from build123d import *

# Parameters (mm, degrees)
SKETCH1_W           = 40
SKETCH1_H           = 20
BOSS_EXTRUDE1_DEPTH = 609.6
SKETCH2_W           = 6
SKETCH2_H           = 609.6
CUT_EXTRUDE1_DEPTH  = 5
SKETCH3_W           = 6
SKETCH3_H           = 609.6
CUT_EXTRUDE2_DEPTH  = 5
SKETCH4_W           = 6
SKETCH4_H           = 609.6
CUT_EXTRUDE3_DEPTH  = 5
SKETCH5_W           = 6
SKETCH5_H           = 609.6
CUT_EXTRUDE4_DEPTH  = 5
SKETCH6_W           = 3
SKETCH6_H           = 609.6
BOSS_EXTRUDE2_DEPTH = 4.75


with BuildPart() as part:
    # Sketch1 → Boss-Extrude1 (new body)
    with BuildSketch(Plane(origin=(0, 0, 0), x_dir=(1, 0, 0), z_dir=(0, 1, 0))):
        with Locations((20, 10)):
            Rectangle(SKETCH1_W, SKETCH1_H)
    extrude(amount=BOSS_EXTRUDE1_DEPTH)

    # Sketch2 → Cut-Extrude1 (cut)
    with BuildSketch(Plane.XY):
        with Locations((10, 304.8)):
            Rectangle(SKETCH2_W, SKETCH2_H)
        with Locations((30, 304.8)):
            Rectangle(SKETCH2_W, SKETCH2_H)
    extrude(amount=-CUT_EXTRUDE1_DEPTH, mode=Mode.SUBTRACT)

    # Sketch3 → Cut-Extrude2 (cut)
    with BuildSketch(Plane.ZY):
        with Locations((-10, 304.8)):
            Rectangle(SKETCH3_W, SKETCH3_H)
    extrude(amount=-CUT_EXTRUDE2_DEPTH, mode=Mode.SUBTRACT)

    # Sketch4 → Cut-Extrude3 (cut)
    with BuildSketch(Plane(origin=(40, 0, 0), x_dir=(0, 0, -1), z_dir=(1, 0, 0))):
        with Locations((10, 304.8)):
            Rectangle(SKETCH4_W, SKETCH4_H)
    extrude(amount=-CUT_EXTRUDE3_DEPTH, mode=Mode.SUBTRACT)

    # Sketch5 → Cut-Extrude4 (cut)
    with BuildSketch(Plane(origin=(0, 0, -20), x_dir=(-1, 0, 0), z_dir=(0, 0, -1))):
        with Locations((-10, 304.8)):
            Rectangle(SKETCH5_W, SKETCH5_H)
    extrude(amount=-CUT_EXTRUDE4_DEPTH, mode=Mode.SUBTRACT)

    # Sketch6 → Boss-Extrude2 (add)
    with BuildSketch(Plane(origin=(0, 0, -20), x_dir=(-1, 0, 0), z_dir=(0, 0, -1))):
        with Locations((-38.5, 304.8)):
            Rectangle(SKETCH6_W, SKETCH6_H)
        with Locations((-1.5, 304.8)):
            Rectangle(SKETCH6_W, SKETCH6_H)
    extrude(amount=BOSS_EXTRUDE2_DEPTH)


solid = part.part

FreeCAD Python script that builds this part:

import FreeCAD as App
import Part
import Sketcher

V = App.Vector

doc = App.newDocument("Part")
body = doc.addObject("PartDesign::Body", "Body")

# Sketch on XZ plane
sketch1 = body.newObject("Sketcher::SketchObject", "Sketch")
sketch1.AttachmentSupport = (doc.getObject("XZ_Plane"), [""])
sketch1.MapMode = "FlatFace"
sketch1.addGeometry(Part.LineSegment(V(0, -20, 0), V(0, 0, 0)), False)
sketch1.addGeometry(Part.LineSegment(V(0, 0, 0), V(40, 0, 0)), False)
sketch1.addGeometry(Part.LineSegment(V(40, 0, 0), V(40, -20, 0)), False)
sketch1.addGeometry(Part.LineSegment(V(40, -20, 0), V(0, -20, 0)), False)
sketch1.addConstraint(Sketcher.Constraint("Coincident", 0, 2, 1, 1))
sketch1.addConstraint(Sketcher.Constraint("Coincident", 1, 2, 2, 1))
sketch1.addConstraint(Sketcher.Constraint("Coincident", 2, 2, 3, 1))
sketch1.addConstraint(Sketcher.Constraint("Coincident", 3, 2, 0, 1))
sketch1.addConstraint(Sketcher.Constraint("Vertical", 0))
sketch1.addConstraint(Sketcher.Constraint("Horizontal", 1))
sketch1.addConstraint(Sketcher.Constraint("Vertical", 2))
sketch1.addConstraint(Sketcher.Constraint("Horizontal", 3))
sketch1.addConstraint(Sketcher.Constraint("Coincident", 0, 2, -1, 1))
sketch1.addConstraint(Sketcher.Constraint("DistanceX", 1, 1, 1, 2, 40.0))
sketch1.addConstraint(Sketcher.Constraint("DistanceY", 0, 1, 0, 2, 20.0))
pad1 = body.newObject("PartDesign::Pad", "Pad")
pad1.Profile = sketch1
pad1.Length = 609.6
pad1.Reversed = True

# Sketch on XY plane
sketch2 = body.newObject("Sketcher::SketchObject", "Sketch001")
sketch2.AttachmentSupport = (doc.getObject("XY_Plane"), [""])
sketch2.MapMode = "FlatFace"
sketch2.addGeometry(Part.LineSegment(V(7, 610, 0), V(7, 0, 0)), False)
sketch2.addGeometry(Part.LineSegment(V(7, 0, 0), V(13, 0, 0)), False)
sketch2.addGeometry(Part.LineSegment(V(13, 0, 0), V(13, 610, 0)), False)
sketch2.addGeometry(Part.LineSegment(V(13, 610, 0), V(7, 610, 0)), False)
sketch2.addGeometry(Part.LineSegment(V(27, 610, 0), V(27, 0, 0)), False)
sketch2.addGeometry(Part.LineSegment(V(27, 0, 0), V(33, 0, 0)), False)
sketch2.addGeometry(Part.LineSegment(V(33, 0, 0), V(33, 610, 0)), False)
sketch2.addGeometry(Part.LineSegment(V(33, 610, 0), V(27, 610, 0)), False)
sketch2.addConstraint(Sketcher.Constraint("Coincident", 0, 2, 1, 1))
sketch2.addConstraint(Sketcher.Constraint("Coincident", 1, 2, 2, 1))
sketch2.addConstraint(Sketcher.Constraint("Coincident", 2, 2, 3, 1))
sketch2.addConstraint(Sketcher.Constraint("Coincident", 3, 2, 0, 1))
sketch2.addConstraint(Sketcher.Constraint("Coincident", 4, 2, 5, 1))
sketch2.addConstraint(Sketcher.Constraint("Coincident", 5, 2, 6, 1))
sketch2.addConstraint(Sketcher.Constraint("Coincident", 6, 2, 7, 1))
sketch2.addConstraint(Sketcher.Constraint("Coincident", 7, 2, 4, 1))
sketch2.addConstraint(Sketcher.Constraint("Vertical", 0))
sketch2.addConstraint(Sketcher.Constraint("Horizontal", 1))
sketch2.addConstraint(Sketcher.Constraint("Vertical", 2))
sketch2.addConstraint(Sketcher.Constraint("Horizontal", 3))
sketch2.addConstraint(Sketcher.Constraint("Vertical", 4))
sketch2.addConstraint(Sketcher.Constraint("Horizontal", 5))
sketch2.addConstraint(Sketcher.Constraint("Vertical", 6))
sketch2.addConstraint(Sketcher.Constraint("Horizontal", 7))
sketch2.addConstraint(Sketcher.Constraint("PointOnObject", 0, 2, -1))
sketch2.addConstraint(Sketcher.Constraint("PointOnObject", 4, 2, -1))
sketch2.addConstraint(Sketcher.Constraint("Horizontal", 3, 2, 6, 2))
sketch2.addConstraint(Sketcher.Constraint("Equal", 3, 5))
sketch2.addConstraint(Sketcher.Constraint("DistanceX", 1, 1, 1, 2, 6.0))
sketch2.addConstraint(Sketcher.Constraint("DistanceY", 0, 2, 0, 1, 609.6))
sketch2.addConstraint(Sketcher.Constraint("DistanceX", -1, 1, 0, 2, 7.0))
sketch2.addConstraint(Sketcher.Constraint("DistanceX", -1, 1, 4, 2, 27.0))
pocket1 = body.newObject("PartDesign::Pocket", "Pocket")
pocket1.Profile = sketch2
pocket1.Length = 5

# Sketch on YZ plane
sketch3 = body.newObject("Sketcher::SketchObject", "Sketch002")
sketch3.AttachmentSupport = (doc.getObject("YZ_Plane"), [""])
sketch3.MapMode = "FlatFace"
sketch3.addGeometry(Part.LineSegment(V(610, -13, 0), V(0, -13, 0)), False)
sketch3.addGeometry(Part.LineSegment(V(0, -13, 0), V(0, -7, 0)), False)
sketch3.addGeometry(Part.LineSegment(V(0, -7, 0), V(610, -7, 0)), False)
sketch3.addGeometry(Part.LineSegment(V(610, -7, 0), V(610, -13, 0)), False)
sketch3.addConstraint(Sketcher.Constraint("Coincident", 0, 2, 1, 1))
sketch3.addConstraint(Sketcher.Constraint("Coincident", 1, 2, 2, 1))
sketch3.addConstraint(Sketcher.Constraint("Coincident", 2, 2, 3, 1))
sketch3.addConstraint(Sketcher.Constraint("Coincident", 3, 2, 0, 1))
sketch3.addConstraint(Sketcher.Constraint("Horizontal", 0))
sketch3.addConstraint(Sketcher.Constraint("Vertical", 1))
sketch3.addConstraint(Sketcher.Constraint("Horizontal", 2))
sketch3.addConstraint(Sketcher.Constraint("Vertical", 3))
sketch3.addConstraint(Sketcher.Constraint("PointOnObject", 0, 2, -2))
sketch3.addConstraint(Sketcher.Constraint("DistanceY", 1, 1, 1, 2, 6.0))
sketch3.addConstraint(Sketcher.Constraint("DistanceX", 0, 2, 0, 1, 609.6))
sketch3.addConstraint(Sketcher.Constraint("DistanceY", 0, 2, -1, 1, 13.0))
pocket2 = body.newObject("PartDesign::Pocket", "Pocket001")
pocket2.Profile = sketch3
pocket2.Length = 5
pocket2.Reversed = True

# Sketch on YZ plane
sketch4 = body.newObject("Sketcher::SketchObject", "Sketch003")
sketch4.AttachmentSupport = (doc.getObject("YZ_Plane"), [""])
sketch4.MapMode = "FlatFace"
sketch4.AttachmentOffset = App.Placement(V(0, 0, 40), App.Rotation())
sketch4.addGeometry(Part.LineSegment(V(610, -7, 0), V(0, -7, 0)), False)
sketch4.addGeometry(Part.LineSegment(V(0, -7, 0), V(0, -13, 0)), False)
sketch4.addGeometry(Part.LineSegment(V(0, -13, 0), V(610, -13, 0)), False)
sketch4.addGeometry(Part.LineSegment(V(610, -13, 0), V(610, -7, 0)), False)
sketch4.addConstraint(Sketcher.Constraint("Coincident", 0, 2, 1, 1))
sketch4.addConstraint(Sketcher.Constraint("Coincident", 1, 2, 2, 1))
sketch4.addConstraint(Sketcher.Constraint("Coincident", 2, 2, 3, 1))
sketch4.addConstraint(Sketcher.Constraint("Coincident", 3, 2, 0, 1))
sketch4.addConstraint(Sketcher.Constraint("Horizontal", 0))
sketch4.addConstraint(Sketcher.Constraint("Vertical", 1))
sketch4.addConstraint(Sketcher.Constraint("Horizontal", 2))
sketch4.addConstraint(Sketcher.Constraint("Vertical", 3))
sketch4.addConstraint(Sketcher.Constraint("PointOnObject", 0, 2, -2))
sketch4.addConstraint(Sketcher.Constraint("DistanceY", 1, 2, 1, 1, 6.0))
sketch4.addConstraint(Sketcher.Constraint("DistanceX", 0, 2, 0, 1, 609.6))
sketch4.addConstraint(Sketcher.Constraint("DistanceY", 0, 2, -1, 1, 7.0))
pocket3 = body.newObject("PartDesign::Pocket", "Pocket002")
pocket3.Profile = sketch4
pocket3.Length = 5

# Sketch on XY plane
sketch5 = body.newObject("Sketcher::SketchObject", "Sketch004")
sketch5.AttachmentSupport = (doc.getObject("XY_Plane"), [""])
sketch5.MapMode = "FlatFace"
sketch5.AttachmentOffset = App.Placement(V(0, 0, -20), App.Rotation())
sketch5.addGeometry(Part.LineSegment(V(13, 610, 0), V(13, 0, 0)), False)
sketch5.addGeometry(Part.LineSegment(V(13, 0, 0), V(7, 0, 0)), False)
sketch5.addGeometry(Part.LineSegment(V(7, 0, 0), V(7, 610, 0)), False)
sketch5.addGeometry(Part.LineSegment(V(7, 610, 0), V(13, 610, 0)), False)
sketch5.addConstraint(Sketcher.Constraint("Coincident", 0, 2, 1, 1))
sketch5.addConstraint(Sketcher.Constraint("Coincident", 1, 2, 2, 1))
sketch5.addConstraint(Sketcher.Constraint("Coincident", 2, 2, 3, 1))
sketch5.addConstraint(Sketcher.Constraint("Coincident", 3, 2, 0, 1))
sketch5.addConstraint(Sketcher.Constraint("Vertical", 0))
sketch5.addConstraint(Sketcher.Constraint("Horizontal", 1))
sketch5.addConstraint(Sketcher.Constraint("Vertical", 2))
sketch5.addConstraint(Sketcher.Constraint("Horizontal", 3))
sketch5.addConstraint(Sketcher.Constraint("PointOnObject", 0, 2, -1))
sketch5.addConstraint(Sketcher.Constraint("DistanceX", 1, 2, 1, 1, 6.0))
sketch5.addConstraint(Sketcher.Constraint("DistanceY", 0, 2, 0, 1, 609.6))
sketch5.addConstraint(Sketcher.Constraint("DistanceX", -1, 1, 0, 2, 13.0))
pocket4 = body.newObject("PartDesign::Pocket", "Pocket003")
pocket4.Profile = sketch5
pocket4.Length = 5
pocket4.Reversed = True

# Sketch on XY plane
sketch6 = body.newObject("Sketcher::SketchObject", "Sketch005")
sketch6.AttachmentSupport = (doc.getObject("XY_Plane"), [""])
sketch6.MapMode = "FlatFace"
sketch6.AttachmentOffset = App.Placement(V(0, 0, -20), App.Rotation())
sketch6.addGeometry(Part.LineSegment(V(40, 609.6, 0), V(40, 0, 0)), False)
sketch6.addGeometry(Part.LineSegment(V(40, 0, 0), V(37, 0, 0)), False)
sketch6.addGeometry(Part.LineSegment(V(37, 0, 0), V(37, 609.6, 0)), False)
sketch6.addGeometry(Part.LineSegment(V(37, 609.6, 0), V(40, 609.6, 0)), False)
sketch6.addGeometry(Part.LineSegment(V(3, 609.6, 0), V(3, 0, 0)), False)
sketch6.addGeometry(Part.LineSegment(V(3, 0, 0), V(0, 0, 0)), False)
sketch6.addGeometry(Part.LineSegment(V(0, 0, 0), V(0, 609.6, 0)), False)
sketch6.addGeometry(Part.LineSegment(V(0, 609.6, 0), V(3, 609.6, 0)), False)
sketch6.addConstraint(Sketcher.Constraint("Coincident", 0, 2, 1, 1))
sketch6.addConstraint(Sketcher.Constraint("Coincident", 1, 2, 2, 1))
sketch6.addConstraint(Sketcher.Constraint("Coincident", 2, 2, 3, 1))
sketch6.addConstraint(Sketcher.Constraint("Coincident", 3, 2, 0, 1))
sketch6.addConstraint(Sketcher.Constraint("Coincident", 4, 2, 5, 1))
sketch6.addConstraint(Sketcher.Constraint("Coincident", 5, 2, 6, 1))
sketch6.addConstraint(Sketcher.Constraint("Coincident", 6, 2, 7, 1))
sketch6.addConstraint(Sketcher.Constraint("Coincident", 7, 2, 4, 1))
sketch6.addConstraint(Sketcher.Constraint("Vertical", 0))
sketch6.addConstraint(Sketcher.Constraint("Horizontal", 1))
sketch6.addConstraint(Sketcher.Constraint("Vertical", 2))
sketch6.addConstraint(Sketcher.Constraint("Horizontal", 3))
sketch6.addConstraint(Sketcher.Constraint("Vertical", 4))
sketch6.addConstraint(Sketcher.Constraint("Horizontal", 5))
sketch6.addConstraint(Sketcher.Constraint("Vertical", 6))
sketch6.addConstraint(Sketcher.Constraint("Horizontal", 7))
sketch6.addConstraint(Sketcher.Constraint("Coincident", 5, 2, -1, 1))
sketch6.addConstraint(Sketcher.Constraint("PointOnObject", 0, 2, -1))
sketch6.addConstraint(Sketcher.Constraint("Horizontal", 3, 2, 6, 2))
sketch6.addConstraint(Sketcher.Constraint("Equal", 3, 5))
sketch6.addConstraint(Sketcher.Constraint("DistanceX", 1, 2, 1, 1, 3.0))
sketch6.addConstraint(Sketcher.Constraint("DistanceY", 0, 2, 0, 1, 609.6))
sketch6.addConstraint(Sketcher.Constraint("DistanceX", -1, 1, 0, 2, 40.0))
pad2 = body.newObject("PartDesign::Pad", "Pad001")
pad2.Profile = sketch6
pad2.Length = 4.75
pad2.Reversed = True

doc.recompute()
